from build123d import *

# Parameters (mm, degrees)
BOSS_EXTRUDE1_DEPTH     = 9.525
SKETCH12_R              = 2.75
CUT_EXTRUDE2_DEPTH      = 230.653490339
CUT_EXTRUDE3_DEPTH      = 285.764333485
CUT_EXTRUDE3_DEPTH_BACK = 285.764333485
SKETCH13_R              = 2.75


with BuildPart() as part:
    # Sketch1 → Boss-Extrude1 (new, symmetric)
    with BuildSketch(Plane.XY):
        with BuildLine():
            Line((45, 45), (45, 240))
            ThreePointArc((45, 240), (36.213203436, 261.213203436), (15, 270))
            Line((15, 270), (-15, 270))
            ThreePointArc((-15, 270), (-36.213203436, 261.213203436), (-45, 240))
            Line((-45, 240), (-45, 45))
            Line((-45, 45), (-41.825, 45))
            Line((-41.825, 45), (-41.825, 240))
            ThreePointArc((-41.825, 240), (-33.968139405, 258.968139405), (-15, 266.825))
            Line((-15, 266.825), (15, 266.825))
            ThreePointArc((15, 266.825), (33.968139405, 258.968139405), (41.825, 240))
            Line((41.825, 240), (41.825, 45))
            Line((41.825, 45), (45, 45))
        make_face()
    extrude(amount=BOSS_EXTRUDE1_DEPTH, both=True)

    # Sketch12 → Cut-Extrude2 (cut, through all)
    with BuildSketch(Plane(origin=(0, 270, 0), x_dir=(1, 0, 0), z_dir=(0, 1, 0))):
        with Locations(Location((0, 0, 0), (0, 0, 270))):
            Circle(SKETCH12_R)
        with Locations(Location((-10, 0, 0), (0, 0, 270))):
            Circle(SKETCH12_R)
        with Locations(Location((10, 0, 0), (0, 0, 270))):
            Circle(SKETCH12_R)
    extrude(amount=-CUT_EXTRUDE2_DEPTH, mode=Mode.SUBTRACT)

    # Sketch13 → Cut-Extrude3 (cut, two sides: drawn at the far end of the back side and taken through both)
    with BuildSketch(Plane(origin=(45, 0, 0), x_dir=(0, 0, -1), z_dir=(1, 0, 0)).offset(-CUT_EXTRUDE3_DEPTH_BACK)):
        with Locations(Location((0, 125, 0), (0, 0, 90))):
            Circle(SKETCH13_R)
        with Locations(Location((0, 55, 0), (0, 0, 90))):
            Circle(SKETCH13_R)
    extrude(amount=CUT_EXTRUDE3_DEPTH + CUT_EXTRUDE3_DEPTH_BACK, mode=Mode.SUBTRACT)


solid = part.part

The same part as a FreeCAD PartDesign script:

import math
import FreeCAD as App
import Part
import Sketcher

V = App.Vector
Q = App.Units.Quantity

doc = App.newDocument("Part")
body = doc.addObject("PartDesign::Body", "Body")

# Sketch on XY plane
sketch1 = body.newObject("Sketcher::SketchObject", "Sketch")
sketch1.AttachmentSupport = (doc.getObject("XY_Plane"), [""])
sketch1.MapMode = "FlatFace"
sketch1.addGeometry(Part.LineSegment(V(45, 45, 0), V(45, 240, 0)), False)
sketch1.addGeometry(Part.ArcOfCircle(Part.Circle(V(15, 240, 0), V(0, 0, 1), 30), math.radians(0), math.radians(90)), False)
sketch1.addGeometry(Part.LineSegment(V(15, 270, 0), V(-15, 270, 0)), False)
sketch1.addGeometry(Part.ArcOfCircle(Part.Circle(V(-15, 240, 0), V(0, 0, 1), 30), math.radians(90), math.radians(180)), False)
sketch1.addGeometry(Part.LineSegment(V(-45, 240, 0), V(-45, 45, 0)), False)
sketch1.addGeometry(Part.LineSegment(V(-45, 45, 0), V(-41.8, 45, 0)), False)
sketch1.addGeometry(Part.LineSegment(V(-41.8, 45, 0), V(-41.8, 240, 0)), False)
sketch1.addGeometry(Part.ArcOfCircle(Part.Circle(V(-15, 240, 0), V(0, 0, 1), 26.8), math.radians(90), math.radians(180)), False)
sketch1.addGeometry(Part.LineSegment(V(-15, 266.8, 0), V(15, 266.8, 0)), False)
sketch1.addGeometry(Part.ArcOfCircle(Part.Circle(V(15, 240, 0), V(0, 0, 1), 26.8), math.radians(0), math.radians(90)), False)
sketch1.addGeometry(Part.LineSegment(V(41.8, 240, 0), V(41.8, 45, 0)), False)
sketch1.addGeometry(Part.LineSegment(V(41.8, 45, 0), V(45, 45, 0)), False)
sketch1.addConstraint(Sketcher.Constraint("Tangent", 0, 2, 1, 1))
sketch1.addConstraint(Sketcher.Constraint("Tangent", 1, 2, 2, 1))
sketch1.addConstraint(Sketcher.Constraint("Tangent", 2, 2, 3, 1))
sketch1.addConstraint(Sketcher.Constraint("Tangent", 3, 2, 4, 1))
sketch1.addConstraint(Sketcher.Constraint("Coincident", 4, 2, 5, 1))
sketch1.addConstraint(Sketcher.Constraint("Coincident", 5, 2, 6, 1))
sketch1.addConstraint(Sketcher.Constraint("Tangent", 6, 2, 7, 2))
sketch1.addConstraint(Sketcher.Constraint("Tangent", 7, 1, 8, 1))
sketch1.addConstraint(Sketcher.Constraint("Tangent", 8, 2, 9, 2))
sketch1.addConstraint(Sketcher.Constraint("Tangent", 9, 1, 10, 1))
sketch1.addConstraint(Sketcher.Constraint("Coincident", 10, 2, 11, 1))
sketch1.addConstraint(Sketcher.Constraint("Coincident", 11, 2, 0, 1))
sketch1.addConstraint(Sketcher.Constraint("Vertical", 0))
sketch1.addConstraint(Sketcher.Constraint("Horizontal", 2))
sketch1.addConstraint(Sketcher.Constraint("Vertical", 4))
sketch1.addConstraint(Sketcher.Constraint("Horizontal", 5))
sketch1.addConstraint(Sketcher.Constraint("Vertical", 6))
sketch1.addConstraint(Sketcher.Constraint("Horizontal", 8))
sketch1.addConstraint(Sketcher.Constraint("Vertical", 10))
sketch1.addConstraint(Sketcher.Constraint("Horizontal", 11))
sketch1.addConstraint(Sketcher.Constraint("Coincident", 7, 3, 3, 3))
sketch1.addConstraint(Sketcher.Constraint("Coincident", 9, 3, 1, 3))
sketch1.addConstraint(Sketcher.Constraint("Equal", 1, 3))
sketch1.addConstraint(Sketcher.Constraint("Symmetric", 5, 2, 10, 2, -2))
sketch1.addConstraint(Sketcher.Constraint("Radius", 1, Q("30 mm")))
sketch1.addConstraint(Sketcher.Constraint("DistanceX", 2, 2, 2, 1, Q("30 mm")))
sketch1.addConstraint(Sketcher.Constraint("DistanceY", 0, 1, 0, 2, Q("195 mm")))
sketch1.addConstraint(Sketcher.Constraint("DistanceY", -1, 1, 1, 3, Q("240 mm")))
sketch1.addConstraint(Sketcher.Constraint("Radius", 7, Q("26.825 mm")))
pad1 = body.newObject("PartDesign::Pad", "Pad")
pad1.Profile = sketch1
pad1.Length = 19.05
pad1.Midplane = True

# Sketch on XZ plane
sketch2 = body.newObject("Sketcher::SketchObject", "Sketch001")
sketch2.AttachmentSupport = (doc.getObject("XZ_Plane"), [""])
sketch2.MapMode = "FlatFace"
sketch2.AttachmentOffset = App.Placement(V(0, 0, -270), App.Rotation())
sketch2.addGeometry(Part.Circle(V(0, 0, 0), V(0, 0, 1), 2.8), False)
sketch2.addGeometry(Part.Circle(V(-10, 0, 0), V(0, 0, 1), 2.8), False)
sketch2.addGeometry(Part.Circle(V(10, 0, 0), V(0, 0, 1), 2.8), False)
sketch2.addConstraint(Sketcher.Constraint("Coincident", 0, 3, -1, 1))
sketch2.addConstraint(Sketcher.Constraint("Equal", 0, 1))
sketch2.addConstraint(Sketcher.Constraint("Equal", 1, 2))
sketch2.addConstraint(Sketcher.Constraint("Symmetric", 1, 3, 2, 3, -1, 1))
sketch2.addConstraint(Sketcher.Constraint("PointOnObject", 1, 3, -1))
sketch2.addConstraint(Sketcher.Constraint("Diameter", 0, Q("5.5 mm")))
sketch2.addConstraint(Sketcher.Constraint("DistanceX", 1, 3, -1, 1, Q("10 mm")))
pocket1 = body.newObject("PartDesign::Pocket", "Pocket")
pocket1.Profile = sketch2
pocket1.Type = "ThroughAll"
pocket1.Reversed = True

# Sketch on YZ plane
sketch3 = body.newObject("Sketcher::SketchObject", "Sketch002")
sketch3.AttachmentSupport = (doc.getObject("YZ_Plane"), [""])
sketch3.MapMode = "FlatFace"
sketch3.AttachmentOffset = App.Placement(V(0, 0, 45), App.Rotation())
sketch3.addGeometry(Part.Circle(V(125, 0, 0), V(0, 0, 1), 2.8), False)
sketch3.addGeometry(Part.Circle(V(55, 0, 0), V(0, 0, 1), 2.8), False)
sketch3.addConstraint(Sketcher.Constraint("Equal", 0, 1))
sketch3.addConstraint(Sketcher.Constraint("PointOnObject", 0, 3, -1))
sketch3.addConstraint(Sketcher.Constraint("PointOnObject", 1, 3, -1))
sketch3.addConstraint(Sketcher.Constraint("Diameter", 0, Q("5.5 mm")))
sketch3.addConstraint(Sketcher.Constraint("DistanceX", -1, 1, 0, 3, Q("125 mm")))
sketch3.addConstraint(Sketcher.Constraint("DistanceX", -1, 1, 1, 3, Q("55 mm")))
pocket2 = body.newObject("PartDesign::Pocket", "Pocket001")
pocket2.Profile = sketch3
pocket2.Type = "ThroughAll"
pocket2.Midplane = True

doc.recompute()
